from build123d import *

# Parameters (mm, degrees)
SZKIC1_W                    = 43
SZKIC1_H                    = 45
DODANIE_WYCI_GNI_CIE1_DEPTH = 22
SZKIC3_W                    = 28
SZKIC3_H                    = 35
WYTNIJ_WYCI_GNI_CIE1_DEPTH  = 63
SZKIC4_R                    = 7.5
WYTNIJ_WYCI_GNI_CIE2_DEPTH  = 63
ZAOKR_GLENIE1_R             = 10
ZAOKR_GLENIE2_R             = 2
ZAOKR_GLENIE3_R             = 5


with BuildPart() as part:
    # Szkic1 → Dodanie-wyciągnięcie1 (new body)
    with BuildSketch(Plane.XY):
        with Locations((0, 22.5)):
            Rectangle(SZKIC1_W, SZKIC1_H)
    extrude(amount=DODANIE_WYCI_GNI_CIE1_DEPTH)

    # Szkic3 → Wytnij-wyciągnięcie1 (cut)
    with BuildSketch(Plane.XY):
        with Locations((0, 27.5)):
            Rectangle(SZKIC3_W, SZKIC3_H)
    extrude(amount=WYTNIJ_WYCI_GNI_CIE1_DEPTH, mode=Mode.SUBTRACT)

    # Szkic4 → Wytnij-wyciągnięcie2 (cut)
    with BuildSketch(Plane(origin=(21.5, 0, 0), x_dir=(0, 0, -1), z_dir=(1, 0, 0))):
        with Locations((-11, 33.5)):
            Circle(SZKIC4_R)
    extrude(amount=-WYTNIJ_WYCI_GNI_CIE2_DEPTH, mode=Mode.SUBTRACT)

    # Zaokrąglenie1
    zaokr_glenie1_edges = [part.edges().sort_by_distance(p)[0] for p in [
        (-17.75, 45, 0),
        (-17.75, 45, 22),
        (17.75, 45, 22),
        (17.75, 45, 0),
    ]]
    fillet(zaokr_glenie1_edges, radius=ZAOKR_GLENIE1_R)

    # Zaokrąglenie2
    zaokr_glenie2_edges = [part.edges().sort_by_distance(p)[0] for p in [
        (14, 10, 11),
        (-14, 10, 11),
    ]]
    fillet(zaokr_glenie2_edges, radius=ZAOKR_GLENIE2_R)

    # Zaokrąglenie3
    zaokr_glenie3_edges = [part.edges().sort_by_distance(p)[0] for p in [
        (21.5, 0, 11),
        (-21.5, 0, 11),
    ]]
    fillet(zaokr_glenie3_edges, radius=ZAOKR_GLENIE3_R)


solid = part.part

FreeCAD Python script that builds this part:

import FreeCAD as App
import Part
import Sketcher

V = App.Vector


def edges_at(feature, points):
    """Names of the edges that pass closest to the given points."""
    edges = feature.Shape.Edges
    near = lambda p: min(range(len(edges)), key=lambda i: edges[i].distToShape(Part.Vertex(*p))[0])
    return sorted({f"Edge{near(p) + 1}" for p in points})


def add_polygon(sketch, points):
    """Adds a closed chain of lines whose ends are joined by coincident constraints."""
    first, n = sketch.GeometryCount, len(points)
    for a, b in zip(points, points[1:] + points[:1]):
        sketch.addGeometry(Part.LineSegment(App.Vector(*a, 0), App.Vector(*b, 0)), False)
    for i in range(n):
        sketch.addConstraint(Sketcher.Constraint("Coincident", first + i, 2, first + (i + 1) % n, 1))

doc = App.newDocument("Part")
body = doc.addObject("PartDesign::Body", "Body")

# Sketch on XY plane
sketch1 = body.newObject("Sketcher::SketchObject", "Sketch")
sketch1.AttachmentSupport = (doc.getObject("XY_Plane"), [""])
sketch1.MapMode = "FlatFace"
add_polygon(sketch1, [(-21.5, 45), (-21.5, 0), (21.5, 0), (21.5, 45)])  # lines 0-3
sketch1.addConstraint(Sketcher.Constraint("Vertical", 0))
sketch1.addConstraint(Sketcher.Constraint("Horizontal", 1))
sketch1.addConstraint(Sketcher.Constraint("Vertical", 2))
sketch1.addConstraint(Sketcher.Constraint("Horizontal", 3))
sketch1.addConstraint(Sketcher.Constraint("Symmetric", 0, 2, 1, 2, -1, 1))
sketch1.addConstraint(Sketcher.Constraint("DistanceX", 1, 1, 1, 2, 43.0))
sketch1.addConstraint(Sketcher.Constraint("DistanceY", 0, 2, 0, 1, 45.0))
pad1 = body.newObject("PartDesign::Pad", "Pad")
pad1.Profile = sketch1
pad1.Length = 22

# Sketch on XY plane
sketch2 = body.newObject("Sketcher::SketchObject", "Sketch001")
sketch2.AttachmentSupport = (doc.getObject("XY_Plane"), [""])
sketch2.MapMode = "FlatFace"
add_polygon(sketch2, [(-14, 45), (-14, 10), (14, 10), (14, 45)])  # lines 0-3
sketch2.addConstraint(Sketcher.Constraint("Vertical", 0))
sketch2.addConstraint(Sketcher.Constraint("Horizontal", 1))
sketch2.addConstraint(Sketcher.Constraint("Vertical", 2))
sketch2.addConstraint(Sketcher.Constraint("Horizontal", 3))
sketch2.addConstraint(Sketcher.Constraint("DistanceX", 1, 1, 1, 2, 28.0))
sketch2.addConstraint(Sketcher.Constraint("DistanceY", 0, 2, 0, 1, 35.0))
sketch2.addConstraint(Sketcher.Constraint("DistanceX", 0, 2, -1, 1, 14.0))
sketch2.addConstraint(Sketcher.Constraint("DistanceY", -1, 1, 0, 2, 10.0))
pocket1 = body.newObject("PartDesign::Pocket", "Pocket")
pocket1.Profile = sketch2
pocket1.Length = 63
pocket1.Reversed = True

# Sketch on YZ plane
sketch3 = body.newObject("Sketcher::SketchObject", "Sketch002")
sketch3.AttachmentSupport = (doc.getObject("YZ_Plane"), [""])
sketch3.MapMode = "FlatFace"
sketch3.AttachmentOffset = App.Placement(V(0, 0, 21.5), App.Rotation())
sketch3.addGeometry(Part.Circle(V(33.5, 11, 0), V(0, 0, 1), 7.5), False)
sketch3.addConstraint(Sketcher.Constraint("Diameter", 0, 15.0))
sketch3.addConstraint(Sketcher.Constraint("DistanceY", -1, 1, 0, 3, 11.0))
sketch3.addConstraint(Sketcher.Constraint("DistanceX", -1, 1, 0, 3, 33.5))
pocket2 = body.newObject("PartDesign::Pocket", "Pocket001")
pocket2.Profile = sketch3
pocket2.Length = 63
doc.recompute()

fillet = body.newObject("PartDesign::Fillet", "Fillet")
fillet.Base = (pocket2, edges_at(pocket2, [
    (-17.75, 45, 0),
    (-17.75, 45, 22),
    (17.75, 45, 22),
    (17.75, 45, 0),
]))
fillet.Radius = 10
doc.recompute()

fillet2 = body.newObject("PartDesign::Fillet", "Fillet001")
fillet2.Base = (fillet, edges_at(fillet, [(14, 10, 11), (-14, 10, 11)]))
fillet2.Radius = 2
doc.recompute()

fillet3 = body.newObject("PartDesign::Fillet", "Fillet002")
fillet3.Base = (fillet2, edges_at(fillet2, [(21.5, 0, 11), (-21.5, 0, 11)]))
fillet3.Radius = 5

doc.recompute()
